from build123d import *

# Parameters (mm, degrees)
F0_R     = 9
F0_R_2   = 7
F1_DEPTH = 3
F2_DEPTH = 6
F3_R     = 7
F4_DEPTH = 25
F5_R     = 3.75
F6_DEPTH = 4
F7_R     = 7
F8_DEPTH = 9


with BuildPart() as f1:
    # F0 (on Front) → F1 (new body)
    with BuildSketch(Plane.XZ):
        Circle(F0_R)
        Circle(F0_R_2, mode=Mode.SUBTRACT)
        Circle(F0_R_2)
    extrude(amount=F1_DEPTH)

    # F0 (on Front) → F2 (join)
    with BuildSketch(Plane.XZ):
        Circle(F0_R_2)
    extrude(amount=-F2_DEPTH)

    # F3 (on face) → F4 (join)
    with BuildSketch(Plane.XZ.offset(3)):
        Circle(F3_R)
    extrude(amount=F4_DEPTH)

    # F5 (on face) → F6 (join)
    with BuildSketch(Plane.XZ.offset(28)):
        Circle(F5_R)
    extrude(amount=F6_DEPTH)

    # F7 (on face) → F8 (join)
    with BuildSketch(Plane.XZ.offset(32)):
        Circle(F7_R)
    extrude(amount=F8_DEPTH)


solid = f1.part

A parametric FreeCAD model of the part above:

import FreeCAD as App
import Part
import Sketcher
Q = App.Units.Quantity

doc = App.newDocument("Part")
body = doc.addObject("PartDesign::Body", "Body")

# Sketch on XZ plane
sketch1 = doc.addObject("Sketcher::SketchObject", "Sketch")
body.addObject(sketch1)
sketch1.AttachmentSupport = (doc.XZ_Plane, [""])
sketch1.MapMode = "FlatFace"
sketch1.addGeometry(Part.Circle(App.Vector(0, 0, 0), App.Vector(0, 0, 1), 9), False)
sketch1.addConstraint(Sketcher.Constraint("Coincident", 0, 3, -1, 1))
sketch1.addConstraint(Sketcher.Constraint("Diameter", 0, Q("18 mm")))
pad1 = doc.addObject("PartDesign::Pad", "Pad")
body.addObject(pad1)
pad1.Profile = sketch1
pad1.Length = 3

# Sketch on XZ plane
sketch2 = doc.addObject("Sketcher::SketchObject", "Sketch001")
body.addObject(sketch2)
sketch2.AttachmentSupport = (doc.XZ_Plane, [""])
sketch2.MapMode = "FlatFace"
sketch2.addGeometry(Part.Circle(App.Vector(0, 0, 0), App.Vector(0, 0, 1), 7), False)
sketch2.addConstraint(Sketcher.Constraint("Coincident", 0, 3, -1, 1))
sketch2.addConstraint(Sketcher.Constraint("Diameter", 0, Q("14 mm")))
pad2 = doc.addObject("PartDesign::Pad", "Pad001")
body.addObject(pad2)
pad2.Profile = sketch2
pad2.Length = 6
pad2.Reversed = True

# Sketch on XZ plane
sketch3 = doc.addObject("Sketcher::SketchObject", "Sketch002")
body.addObject(sketch3)
sketch3.AttachmentSupport = (doc.XZ_Plane, [""])
sketch3.MapMode = "FlatFace"
sketch3.AttachmentOffset = App.Placement(App.Vector(0, 0, 3), App.Rotation())
sketch3.addGeometry(Part.Circle(App.Vector(0, 0, 0), App.Vector(0, 0, 1), 7), False)
sketch3.addConstraint(Sketcher.Constraint("Coincident", 0, 3, -1, 1))
sketch3.addConstraint(Sketcher.Constraint("Diameter", 0, Q("14 mm")))
pad3 = doc.addObject("PartDesign::Pad", "Pad002")
body.addObject(pad3)
pad3.Profile = sketch3
pad3.Length = 25

# Sketch on XZ plane
sketch4 = doc.addObject("Sketcher::SketchObject", "Sketch003")
body.addObject(sketch4)
sketch4.AttachmentSupport = (doc.XZ_Plane, [""])
sketch4.MapMode = "FlatFace"
sketch4.AttachmentOffset = App.Placement(App.Vector(0, 0, 28), App.Rotation())
sketch4.addGeometry(Part.Circle(App.Vector(0, 0, 0), App.Vector(0, 0, 1), 3.75), False)
sketch4.addConstraint(Sketcher.Constraint("Coincident", 0, 3, -1, 1))
sketch4.addConstraint(Sketcher.Constraint("Diameter", 0, Q("7.5 mm")))
pad4 = doc.addObject("PartDesign::Pad", "Pad003")
body.addObject(pad4)
pad4.Profile = sketch4
pad4.Length = 4

# Sketch on XZ plane
sketch5 = doc.addObject("Sketcher::SketchObject", "Sketch004")
body.addObject(sketch5)
sketch5.AttachmentSupport = (doc.XZ_Plane, [""])
sketch5.MapMode = "FlatFace"
sketch5.AttachmentOffset = App.Placement(App.Vector(0, 0, 32), App.Rotation())
sketch5.addGeometry(Part.Circle(App.Vector(0, 0, 0), App.Vector(0, 0, 1), 7), False)
sketch5.addConstraint(Sketcher.Constraint("Coincident", 0, 3, -1, 1))
sketch5.addConstraint(Sketcher.Constraint("Diameter", 0, Q("14 mm")))
pad5 = doc.addObject("PartDesign::Pad", "Pad004")
body.addObject(pad5)
pad5.Profile = sketch5
pad5.Length = 9

doc.recompute()
